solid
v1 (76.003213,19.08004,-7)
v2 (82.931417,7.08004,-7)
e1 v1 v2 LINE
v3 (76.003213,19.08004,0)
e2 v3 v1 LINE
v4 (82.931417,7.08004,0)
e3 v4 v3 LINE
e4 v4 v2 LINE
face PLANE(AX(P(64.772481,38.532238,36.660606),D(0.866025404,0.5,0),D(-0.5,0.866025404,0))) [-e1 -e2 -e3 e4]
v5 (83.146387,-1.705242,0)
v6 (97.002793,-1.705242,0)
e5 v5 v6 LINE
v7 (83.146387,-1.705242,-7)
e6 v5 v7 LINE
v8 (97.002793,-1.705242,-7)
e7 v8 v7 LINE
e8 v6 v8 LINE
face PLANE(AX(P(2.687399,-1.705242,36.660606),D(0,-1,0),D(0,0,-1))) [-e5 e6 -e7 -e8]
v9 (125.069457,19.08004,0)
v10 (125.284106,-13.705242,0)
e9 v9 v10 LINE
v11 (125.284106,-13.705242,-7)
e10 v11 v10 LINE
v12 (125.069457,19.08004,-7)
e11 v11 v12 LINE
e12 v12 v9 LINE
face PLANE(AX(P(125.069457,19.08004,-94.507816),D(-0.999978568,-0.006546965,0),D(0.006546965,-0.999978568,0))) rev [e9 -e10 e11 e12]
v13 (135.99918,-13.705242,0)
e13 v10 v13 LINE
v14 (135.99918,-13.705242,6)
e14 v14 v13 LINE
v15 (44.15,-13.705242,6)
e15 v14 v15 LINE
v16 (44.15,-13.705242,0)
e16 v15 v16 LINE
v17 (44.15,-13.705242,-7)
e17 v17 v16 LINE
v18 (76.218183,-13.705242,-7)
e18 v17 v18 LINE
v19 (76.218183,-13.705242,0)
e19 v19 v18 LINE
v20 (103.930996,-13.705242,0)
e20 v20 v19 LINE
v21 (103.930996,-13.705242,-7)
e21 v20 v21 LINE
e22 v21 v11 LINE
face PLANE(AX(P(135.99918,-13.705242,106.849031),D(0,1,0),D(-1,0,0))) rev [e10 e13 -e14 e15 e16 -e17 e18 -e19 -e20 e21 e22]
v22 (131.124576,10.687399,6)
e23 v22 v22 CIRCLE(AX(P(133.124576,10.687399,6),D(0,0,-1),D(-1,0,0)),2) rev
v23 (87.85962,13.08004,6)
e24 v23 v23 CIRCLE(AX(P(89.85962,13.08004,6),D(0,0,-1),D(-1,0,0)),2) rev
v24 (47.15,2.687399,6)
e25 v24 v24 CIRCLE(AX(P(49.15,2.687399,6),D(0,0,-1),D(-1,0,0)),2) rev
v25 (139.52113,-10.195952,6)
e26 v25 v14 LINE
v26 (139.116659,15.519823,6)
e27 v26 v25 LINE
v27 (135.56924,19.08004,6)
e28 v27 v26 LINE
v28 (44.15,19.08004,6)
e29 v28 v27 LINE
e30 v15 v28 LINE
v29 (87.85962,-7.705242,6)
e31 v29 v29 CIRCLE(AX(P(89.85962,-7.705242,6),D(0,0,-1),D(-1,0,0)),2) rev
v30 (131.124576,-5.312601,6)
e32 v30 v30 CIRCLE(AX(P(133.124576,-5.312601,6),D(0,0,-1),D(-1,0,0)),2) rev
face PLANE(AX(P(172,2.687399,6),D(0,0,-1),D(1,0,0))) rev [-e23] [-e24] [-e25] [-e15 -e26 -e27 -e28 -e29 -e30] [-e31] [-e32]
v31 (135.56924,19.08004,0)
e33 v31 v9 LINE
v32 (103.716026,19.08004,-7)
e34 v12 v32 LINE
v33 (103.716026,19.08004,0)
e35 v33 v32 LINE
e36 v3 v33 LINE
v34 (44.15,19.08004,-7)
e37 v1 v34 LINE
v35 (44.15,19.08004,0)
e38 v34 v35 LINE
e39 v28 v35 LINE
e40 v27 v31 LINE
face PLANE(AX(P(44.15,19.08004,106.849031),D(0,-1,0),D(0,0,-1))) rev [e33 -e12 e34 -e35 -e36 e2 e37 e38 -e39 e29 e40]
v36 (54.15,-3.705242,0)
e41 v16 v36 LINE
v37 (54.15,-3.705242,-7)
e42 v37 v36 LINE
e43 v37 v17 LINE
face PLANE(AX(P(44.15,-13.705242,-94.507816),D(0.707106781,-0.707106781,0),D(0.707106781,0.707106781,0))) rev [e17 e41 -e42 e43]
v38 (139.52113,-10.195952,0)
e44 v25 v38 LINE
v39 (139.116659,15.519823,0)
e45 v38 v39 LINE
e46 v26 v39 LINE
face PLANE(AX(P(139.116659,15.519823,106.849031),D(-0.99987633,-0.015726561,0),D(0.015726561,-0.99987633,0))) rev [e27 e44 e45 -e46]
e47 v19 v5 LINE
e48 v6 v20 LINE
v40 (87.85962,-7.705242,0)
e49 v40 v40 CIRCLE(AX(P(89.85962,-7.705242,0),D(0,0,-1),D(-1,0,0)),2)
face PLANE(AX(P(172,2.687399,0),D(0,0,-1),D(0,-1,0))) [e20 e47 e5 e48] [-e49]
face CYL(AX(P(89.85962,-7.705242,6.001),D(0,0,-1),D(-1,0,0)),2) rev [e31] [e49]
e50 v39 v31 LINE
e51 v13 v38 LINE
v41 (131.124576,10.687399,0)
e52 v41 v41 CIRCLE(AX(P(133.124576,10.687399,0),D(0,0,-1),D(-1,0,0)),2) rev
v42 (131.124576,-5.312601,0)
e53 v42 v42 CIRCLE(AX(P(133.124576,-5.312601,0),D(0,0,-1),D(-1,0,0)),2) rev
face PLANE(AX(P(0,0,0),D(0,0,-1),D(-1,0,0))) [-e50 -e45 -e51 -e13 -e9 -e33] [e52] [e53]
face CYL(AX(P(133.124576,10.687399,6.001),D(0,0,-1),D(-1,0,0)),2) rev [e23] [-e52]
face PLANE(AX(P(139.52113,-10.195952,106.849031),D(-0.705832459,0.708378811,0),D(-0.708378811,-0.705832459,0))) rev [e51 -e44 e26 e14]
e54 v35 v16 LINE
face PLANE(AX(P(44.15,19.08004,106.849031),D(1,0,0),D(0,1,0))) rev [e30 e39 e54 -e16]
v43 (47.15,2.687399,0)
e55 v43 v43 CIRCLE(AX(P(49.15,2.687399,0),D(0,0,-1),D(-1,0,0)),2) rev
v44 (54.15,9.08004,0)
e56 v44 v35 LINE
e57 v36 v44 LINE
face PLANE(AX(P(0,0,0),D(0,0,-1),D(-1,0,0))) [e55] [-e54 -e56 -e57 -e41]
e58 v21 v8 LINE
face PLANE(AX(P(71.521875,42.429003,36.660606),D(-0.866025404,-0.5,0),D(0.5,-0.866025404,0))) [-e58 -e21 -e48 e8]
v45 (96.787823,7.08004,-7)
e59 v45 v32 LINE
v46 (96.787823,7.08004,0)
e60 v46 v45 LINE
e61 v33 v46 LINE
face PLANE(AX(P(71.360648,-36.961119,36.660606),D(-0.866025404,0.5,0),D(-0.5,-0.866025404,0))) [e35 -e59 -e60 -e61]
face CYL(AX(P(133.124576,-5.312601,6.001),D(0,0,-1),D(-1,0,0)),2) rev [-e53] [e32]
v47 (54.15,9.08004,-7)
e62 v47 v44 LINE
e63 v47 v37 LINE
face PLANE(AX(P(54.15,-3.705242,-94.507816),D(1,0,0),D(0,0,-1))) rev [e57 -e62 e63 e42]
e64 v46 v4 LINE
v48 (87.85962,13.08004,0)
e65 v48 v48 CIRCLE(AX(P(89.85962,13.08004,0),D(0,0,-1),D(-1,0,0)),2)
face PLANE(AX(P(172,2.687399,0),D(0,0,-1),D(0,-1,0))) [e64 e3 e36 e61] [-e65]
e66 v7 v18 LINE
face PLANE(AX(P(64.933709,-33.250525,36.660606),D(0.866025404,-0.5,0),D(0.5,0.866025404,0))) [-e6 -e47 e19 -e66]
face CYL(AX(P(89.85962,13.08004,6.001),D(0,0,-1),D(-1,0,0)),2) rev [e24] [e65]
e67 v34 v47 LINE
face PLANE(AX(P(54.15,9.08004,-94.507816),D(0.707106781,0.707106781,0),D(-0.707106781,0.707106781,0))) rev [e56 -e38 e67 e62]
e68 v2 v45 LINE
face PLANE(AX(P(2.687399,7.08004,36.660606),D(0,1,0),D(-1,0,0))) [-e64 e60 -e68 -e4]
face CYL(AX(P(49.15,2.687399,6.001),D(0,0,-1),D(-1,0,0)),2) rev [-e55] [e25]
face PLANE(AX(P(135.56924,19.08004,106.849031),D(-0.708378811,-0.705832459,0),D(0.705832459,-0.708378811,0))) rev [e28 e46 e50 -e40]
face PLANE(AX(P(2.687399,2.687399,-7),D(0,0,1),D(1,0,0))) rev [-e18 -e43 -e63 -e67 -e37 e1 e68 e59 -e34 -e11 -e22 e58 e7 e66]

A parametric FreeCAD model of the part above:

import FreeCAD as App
import Part
import Sketcher

V = App.Vector
Q = App.Units.Quantity


def add_polygon(sketch, points):
    """Adds a closed chain of lines whose ends are joined by coincident constraints."""
    first, n = sketch.GeometryCount, len(points)
    for a, b in zip(points, points[1:] + points[:1]):
        sketch.addGeometry(Part.LineSegment(App.Vector(*a, 0), App.Vector(*b, 0)), False)
    for i in range(n):
        sketch.addConstraint(Sketcher.Constraint("Coincident", first + i, 2, first + (i + 1) % n, 1))

doc = App.newDocument("Part")
body = doc.addObject("PartDesign::Body", "Body")

# Sketch on XY plane
sketch1 = body.newObject("Sketcher::SketchObject", "Sketch")
sketch1.AttachmentSupport = (doc.getObject("XY_Plane"), [""])
sketch1.MapMode = "FlatFace"
add_polygon(sketch1, [(135.56924, 19.08004), (44.15, 19.08004), (44.15, -13.705242), (135.99918, -13.705242), (139.52113, -10.195952), (139.116659, 15.519823)])  # lines 0-5
sketch1.addConstraint(Sketcher.Constraint("Horizontal", 0))
sketch1.addConstraint(Sketcher.Constraint("Vertical", 1))
sketch1.addConstraint(Sketcher.Constraint("Horizontal", 2))
sketch1.addConstraint(Sketcher.Constraint("Perpendicular", 3, 5))
sketch1.addConstraint(Sketcher.Constraint("DistanceX", -1, 1, 0, 2, 44.15))
sketch1.addConstraint(Sketcher.Constraint("DistanceX", 0, 2, 0, 1, 91.41924))
sketch1.addConstraint(Sketcher.Constraint("DistanceX", 2, 1, 2, 2, 91.84918))
sketch1.addConstraint(Sketcher.Constraint("DistanceY", 1, 2, 1, 1, 32.785281))
sketch1.addConstraint(Sketcher.Constraint("DistanceY", -1, 1, 0, 2, 19.08004))
sketch1.addConstraint(Sketcher.Constraint("DistanceX", -1, 1, 3, 2, 139.52113))
sketch1.addConstraint(Sketcher.Constraint("DistanceY", 3, 2, -1, 1, 10.195952))
sketch1.addConstraint(Sketcher.Constraint("DistanceX", -1, 1, 4, 2, 139.116659))
pad1 = body.newObject("PartDesign::Pad", "Pad")
pad1.Profile = sketch1
pad1.Length = 6

# Sketch on XY plane
sketch2 = body.newObject("Sketcher::SketchObject", "Sketch001")
sketch2.AttachmentSupport = (doc.getObject("XY_Plane"), [""])
sketch2.MapMode = "FlatFace"
add_polygon(sketch2, [(125.069457, 19.08004), (125.284106, -13.705242), (44.15, -13.705242), (54.15, -3.705242), (54.15, 9.08004), (44.15, 19.08004)])  # lines 0-5
sketch2.addConstraint(Sketcher.Constraint("Horizontal", 1))
sketch2.addConstraint(Sketcher.Constraint("Vertical", 3))
sketch2.addConstraint(Sketcher.Constraint("Horizontal", 5))
sketch2.addConstraint(Sketcher.Constraint("Perpendicular", 2, 4))
sketch2.addConstraint(Sketcher.Constraint("Vertical", 1, 2, 4, 2))
sketch2.addConstraint(Sketcher.Constraint("Equal", 2, 4))
sketch2.addConstraint(Sketcher.Constraint("DistanceX", 1, 2, 2, 2, 10.0))
sketch2.addConstraint(Sketcher.Constraint("DistanceX", -1, 1, 1, 2, 44.15))
sketch2.addConstraint(Sketcher.Constraint("DistanceY", 3, 1, 3, 2, 12.785281))
sketch2.addConstraint(Sketcher.Constraint("DistanceX", 1, 2, 1, 1, 81.134106))
sketch2.addConstraint(Sketcher.Constraint("DistanceX", 5, 1, 5, 2, 80.919457))
sketch2.addConstraint(Sketcher.Constraint("DistanceY", 0, 2, -1, 1, 13.705242))
pad2 = body.newObject("PartDesign::Pad", "Pad001")
pad2.Profile = sketch2
pad2.Length = 7
pad2.Reversed = True

# Sketch on XY plane
sketch3 = body.newObject("Sketcher::SketchObject", "Sketch002")
sketch3.AttachmentSupport = (doc.getObject("XY_Plane"), [""])
sketch3.MapMode = "FlatFace"
sketch3.AttachmentOffset = App.Placement(V(0, 0, -7), App.Rotation())
sketch3.addGeometry(Part.Circle(V(133.124576, 10.687399, 0), V(0, 0, 1), 2), False)
sketch3.addConstraint(Sketcher.Constraint("Diameter", 0, 4.0))
sketch3.addConstraint(Sketcher.Constraint("DistanceY", -1, 1, 0, 3, 10.687399))
sketch3.addConstraint(Sketcher.Constraint("DistanceX", -1, 1, 0, 3, 133.124576))
pocket1 = body.newObject("PartDesign::Pocket", "Pocket")
pocket1.Profile = sketch3
pocket1.Length = 13
pocket1.Reversed = True

# Sketch on XY plane
sketch4 = body.newObject("Sketcher::SketchObject", "Sketch003")
sketch4.AttachmentSupport = (doc.getObject("XY_Plane"), [""])
sketch4.MapMode = "FlatFace"
sketch4.AttachmentOffset = App.Placement(V(0, 0, -7), App.Rotation())
sketch4.addGeometry(Part.Circle(V(133.124576, -5.312601, 0), V(0, 0, 1), 2), False)
sketch4.addConstraint(Sketcher.Constraint("Diameter", 0, 4.0))
sketch4.addConstraint(Sketcher.Constraint("DistanceY", 0, 3, -1, 1, 5.312601))
sketch4.addConstraint(Sketcher.Constraint("DistanceX", -1, 1, 0, 3, 133.124576))
pocket2 = body.newObject("PartDesign::Pocket", "Pocket001")
pocket2.Profile = sketch4
pocket2.Length = 13
pocket2.Reversed = True

# Sketch on XY plane
sketch5 = body.newObject("Sketcher::SketchObject", "Sketch004")
sketch5.AttachmentSupport = (doc.getObject("XY_Plane"), [""])
sketch5.MapMode = "FlatFace"
sketch5.AttachmentOffset = App.Placement(V(0, 0, -7), App.Rotation())
sketch5.addGeometry(Part.Circle(V(49.15, 2.687399, 0), V(0, 0, 1), 2), False)
sketch5.addConstraint(Sketcher.Constraint("Diameter", 0, 4.0))
sketch5.addConstraint(Sketcher.Constraint("DistanceX", -1, 1, 0, 3, 49.15))
sketch5.addConstraint(Sketcher.Constraint("DistanceY", -1, 1, 0, 3, 2.687399))
pocket3 = body.newObject("PartDesign::Pocket", "Pocket002")
pocket3.Profile = sketch5
pocket3.Length = 13
pocket3.Reversed = True

# Sketch on XY plane
sketch6 = body.newObject("Sketcher::SketchObject", "Sketch005")
sketch6.AttachmentSupport = (doc.getObject("XY_Plane"), [""])
sketch6.MapMode = "FlatFace"
sketch6.AttachmentOffset = App.Placement(V(0, 0, -7), App.Rotation())
add_polygon(sketch6, [(76.218183, -13.705242), (83.146387, -25.705242), (97.002793, -25.705242), (103.930996, -13.705242), (97.002793, -1.705242), (83.146387, -1.705242)])  # lines 0-5
add_polygon(sketch6, [(76.003213, 19.08004), (82.931417, 7.08004), (96.787823, 7.08004), (103.716026, 19.08004), (96.787823, 31.08004), (82.931417, 31.08004)])  # lines 6-11
sketch6.addConstraint(Sketcher.Constraint("Horizontal", 1))
sketch6.addConstraint(Sketcher.Constraint("Horizontal", 4))
sketch6.addConstraint(Sketcher.Constraint("Horizontal", 7))
sketch6.addConstraint(Sketcher.Constraint("Horizontal", 10))
sketch6.addConstraint(Sketcher.Constraint("Parallel", 0, 3))
sketch6.addConstraint(Sketcher.Constraint("Parallel", 2, 5))
sketch6.addConstraint(Sketcher.Constraint("Parallel", 3, 6))
sketch6.addConstraint(Sketcher.Constraint("Parallel", 5, 8))
sketch6.addConstraint(Sketcher.Constraint("Parallel", 6, 9))
sketch6.addConstraint(Sketcher.Constraint("Parallel", 8, 11))
sketch6.addConstraint(Sketcher.Constraint("Horizontal", 2, 2, 5, 2))
sketch6.addConstraint(Sketcher.Constraint("Horizontal", 8, 2, 11, 2))
sketch6.addConstraint(Sketcher.Constraint("Vertical", 1, 2, 3, 2))
sketch6.addConstraint(Sketcher.Constraint("Vertical", 0, 2, 4, 2))
sketch6.addConstraint(Sketcher.Constraint("Vertical", 7, 2, 9, 2))
sketch6.addConstraint(Sketcher.Constraint("Equal", 4, 7))
sketch6.addConstraint(Sketcher.Constraint("Equal", 5, 6))
sketch6.addConstraint(Sketcher.Constraint("Angle", 0, Q("-60 deg")))
sketch6.addConstraint(Sketcher.Constraint("DistanceY", 1, 2, 2, 2, 12.0))
sketch6.addConstraint(Sketcher.Constraint("DistanceX", 1, 1, 1, 2, 13.856406))
sketch6.addConstraint(Sketcher.Constraint("DistanceY", 0, 2, -1, 1, 25.705242))
sketch6.addConstraint(Sketcher.Constraint("DistanceY", -1, 1, 6, 2, 7.08004))
sketch6.addConstraint(Sketcher.Constraint("DistanceX", 6, 2, 4, 2, 0.21497))
sketch6.addConstraint(Sketcher.Constraint("DistanceX", -1, 1, 0, 2, 83.146387))
pocket4 = body.newObject("PartDesign::Pocket", "Pocket003")
pocket4.Profile = sketch6
pocket4.Length = 7
pocket4.Reversed = True

# Sketch on XY plane
sketch7 = body.newObject("Sketcher::SketchObject", "Sketch006")
sketch7.AttachmentSupport = (doc.getObject("XY_Plane"), [""])
sketch7.MapMode = "FlatFace"
sketch7.addGeometry(Part.Circle(V(89.85962, 13.08004, 0), V(0, 0, 1), 2), False)
sketch7.addConstraint(Sketcher.Constraint("Diameter", 0, 4.0))
sketch7.addConstraint(Sketcher.Constraint("DistanceX", -1, 1, 0, 3, 89.85962))
sketch7.addConstraint(Sketcher.Constraint("DistanceY", -1, 1, 0, 3, 13.08004))
pocket5 = body.newObject("PartDesign::Pocket", "Pocket004")
pocket5.Profile = sketch7
pocket5.Type = "UpToFirst"
pocket5.Reversed = True

# Sketch on XY plane
sketch8 = body.newObject("Sketcher::SketchObject", "Sketch007")
sketch8.AttachmentSupport = (doc.getObject("XY_Plane"), [""])
sketch8.MapMode = "FlatFace"
sketch8.addGeometry(Part.Circle(V(89.85962, -7.705242, 0), V(0, 0, 1), 2), False)
sketch8.addConstraint(Sketcher.Constraint("Diameter", 0, 4.0))
sketch8.addConstraint(Sketcher.Constraint("DistanceX", -1, 1, 0, 3, 89.85962))
sketch8.addConstraint(Sketcher.Constraint("DistanceY", 0, 3, -1, 1, 7.705242))
pocket6 = body.newObject("PartDesign::Pocket", "Pocket005")
pocket6.Profile = sketch8
pocket6.Type = "UpToFirst"
pocket6.Reversed = True

doc.recompute()
